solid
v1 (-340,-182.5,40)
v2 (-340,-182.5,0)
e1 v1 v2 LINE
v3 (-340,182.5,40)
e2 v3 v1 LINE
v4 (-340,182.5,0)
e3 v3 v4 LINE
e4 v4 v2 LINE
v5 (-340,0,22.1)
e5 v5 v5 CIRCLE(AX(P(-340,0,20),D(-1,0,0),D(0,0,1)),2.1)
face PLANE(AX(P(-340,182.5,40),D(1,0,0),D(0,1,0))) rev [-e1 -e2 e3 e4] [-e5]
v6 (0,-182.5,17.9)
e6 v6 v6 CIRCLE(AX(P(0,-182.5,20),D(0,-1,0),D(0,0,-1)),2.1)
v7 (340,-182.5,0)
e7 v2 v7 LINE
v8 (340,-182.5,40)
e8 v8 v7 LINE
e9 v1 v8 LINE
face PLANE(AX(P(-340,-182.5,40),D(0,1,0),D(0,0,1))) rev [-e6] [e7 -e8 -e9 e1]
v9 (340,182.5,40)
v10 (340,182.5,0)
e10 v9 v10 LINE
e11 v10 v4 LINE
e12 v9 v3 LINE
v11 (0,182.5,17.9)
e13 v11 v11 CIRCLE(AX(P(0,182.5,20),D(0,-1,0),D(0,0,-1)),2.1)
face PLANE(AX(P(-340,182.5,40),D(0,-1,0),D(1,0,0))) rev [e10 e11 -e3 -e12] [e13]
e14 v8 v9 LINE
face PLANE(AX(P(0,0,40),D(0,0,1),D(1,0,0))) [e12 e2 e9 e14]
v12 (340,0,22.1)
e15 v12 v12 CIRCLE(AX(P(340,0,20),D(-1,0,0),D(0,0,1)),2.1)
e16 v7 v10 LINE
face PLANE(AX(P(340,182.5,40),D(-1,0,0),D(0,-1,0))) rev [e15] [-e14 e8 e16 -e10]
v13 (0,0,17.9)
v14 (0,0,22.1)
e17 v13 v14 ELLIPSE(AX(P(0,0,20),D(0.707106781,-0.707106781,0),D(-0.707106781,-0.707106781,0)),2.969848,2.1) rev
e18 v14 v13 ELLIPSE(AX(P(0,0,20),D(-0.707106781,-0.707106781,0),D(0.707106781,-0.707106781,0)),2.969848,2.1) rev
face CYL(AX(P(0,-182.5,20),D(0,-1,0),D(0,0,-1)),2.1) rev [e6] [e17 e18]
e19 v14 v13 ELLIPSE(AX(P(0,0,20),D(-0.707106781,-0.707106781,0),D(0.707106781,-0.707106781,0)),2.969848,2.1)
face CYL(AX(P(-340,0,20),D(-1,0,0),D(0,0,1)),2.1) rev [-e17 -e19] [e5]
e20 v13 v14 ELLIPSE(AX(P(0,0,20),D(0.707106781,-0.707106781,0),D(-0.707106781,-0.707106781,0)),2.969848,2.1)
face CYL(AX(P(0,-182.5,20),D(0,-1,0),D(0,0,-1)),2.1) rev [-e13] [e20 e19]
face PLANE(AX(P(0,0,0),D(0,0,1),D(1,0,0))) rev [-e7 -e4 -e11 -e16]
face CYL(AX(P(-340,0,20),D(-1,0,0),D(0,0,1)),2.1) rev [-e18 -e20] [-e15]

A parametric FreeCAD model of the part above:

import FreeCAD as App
import Part
import Sketcher

V = App.Vector


def add_polygon(sketch, points):
    """Adds a closed chain of lines whose ends are joined by coincident constraints."""
    first, n = sketch.GeometryCount, len(points)
    for a, b in zip(points, points[1:] + points[:1]):
        sketch.addGeometry(Part.LineSegment(App.Vector(*a, 0), App.Vector(*b, 0)), False)
    for i in range(n):
        sketch.addConstraint(Sketcher.Constraint("Coincident", first + i, 2, first + (i + 1) % n, 1))

doc = App.newDocument("Part")
params = doc.addObject("Spreadsheet::Sheet", "Params")
for row, (alias, value) in enumerate([
    ("sketch1_width", "680 mm"),
    ("sketch1_height", "365 mm"),
    ("pad1_length", "40 mm"),
    ("sketch2_diameter", "4.2 mm"),
    ("hole_diameter", "4.2 mm"),
    ("sketch3_diameter", "4.2 mm"),
    ("hole2_diameter", "4.2 mm"),
], start=1):
    params.set(f"A{row}", alias)
    params.set(f"B{row}", "=" + value)
    params.setAlias(f"B{row}", alias)

body = doc.addObject("PartDesign::Body", "Body")

sketch1 = body.newObject("Sketcher::SketchObject", "Sketch")
sketch1.AttachmentSupport = (doc.getObject("XY_Plane"), [""])
sketch1.MapMode = "FlatFace"
add_polygon(sketch1, [(-340, 182), (-340, -182), (340, -182), (340, 182)])
sketch1.addConstraint([
    Sketcher.Constraint("Vertical", 0),
    Sketcher.Constraint("Horizontal", 1),
    Sketcher.Constraint("Vertical", 2),
    Sketcher.Constraint("Horizontal", 3),
    Sketcher.Constraint("Symmetric", 0, 2, 2, 2, -1, 1),
    Sketcher.Constraint("DistanceX", 1, 1, 1, 2, 680.0),
    Sketcher.Constraint("DistanceY", 0, 2, 0, 1, 365.0),
])
sketch1.setExpression("Constraints[9]", "Params.sketch1_width")
sketch1.setExpression("Constraints[10]", "Params.sketch1_height")
pad1 = body.newObject("PartDesign::Pad", "Pad")
pad1.Profile = sketch1
pad1.setExpression("Length", "Params.pad1_length")

sketch2 = body.newObject("Sketcher::SketchObject", "Sketch001")
sketch2.AttachmentSupport = (doc.getObject("XZ_Plane"), [""])
sketch2.MapMode = "FlatFace"
sketch2.AttachmentOffset = App.Placement(V(0, 0, 182.5), App.Rotation())
sketch2.addGeometry(Part.Circle(V(0, 20, 0), V(0, 0, 1), 2.1), False)
sketch2.addConstraint([
    Sketcher.Constraint("PointOnObject", 0, 3, -2),
    Sketcher.Constraint("Diameter", 0, 4.2),
    Sketcher.Constraint("DistanceY", -1, 1, 0, 3, 20.0),
])
sketch2.setExpression("Constraints[1]", "Params.sketch2_diameter")
doc.recompute()
hole = body.newObject("PartDesign::Hole", "Hole")
hole.Profile = sketch2
hole.ThreadType = "None"
hole.setExpression("Diameter", "Params.hole_diameter")
hole.DepthType = "ThroughAll"

sketch3 = body.newObject("Sketcher::SketchObject", "Sketch002")
sketch3.AttachmentSupport = (doc.getObject("YZ_Plane"), [""])
sketch3.MapMode = "FlatFace"
sketch3.AttachmentOffset = App.Placement(V(0, 0, -340), App.Rotation())
sketch3.addGeometry(Part.Circle(V(0, 20, 0), V(0, 0, 1), 2.1), False)
sketch3.addConstraint([
    Sketcher.Constraint("PointOnObject", 0, 3, -2),
    Sketcher.Constraint("Diameter", 0, 4.2),
    Sketcher.Constraint("DistanceY", -1, 1, 0, 3, 20.0),
])
sketch3.setExpression("Constraints[1]", "Params.sketch3_diameter")
doc.recompute()
hole2 = body.newObject("PartDesign::Hole", "Hole001")
hole2.Profile = sketch3
hole2.ThreadType = "None"
hole2.setExpression("Diameter", "Params.hole2_diameter")
hole2.DepthType = "ThroughAll"
hole2.Reversed = True

doc.recompute()
